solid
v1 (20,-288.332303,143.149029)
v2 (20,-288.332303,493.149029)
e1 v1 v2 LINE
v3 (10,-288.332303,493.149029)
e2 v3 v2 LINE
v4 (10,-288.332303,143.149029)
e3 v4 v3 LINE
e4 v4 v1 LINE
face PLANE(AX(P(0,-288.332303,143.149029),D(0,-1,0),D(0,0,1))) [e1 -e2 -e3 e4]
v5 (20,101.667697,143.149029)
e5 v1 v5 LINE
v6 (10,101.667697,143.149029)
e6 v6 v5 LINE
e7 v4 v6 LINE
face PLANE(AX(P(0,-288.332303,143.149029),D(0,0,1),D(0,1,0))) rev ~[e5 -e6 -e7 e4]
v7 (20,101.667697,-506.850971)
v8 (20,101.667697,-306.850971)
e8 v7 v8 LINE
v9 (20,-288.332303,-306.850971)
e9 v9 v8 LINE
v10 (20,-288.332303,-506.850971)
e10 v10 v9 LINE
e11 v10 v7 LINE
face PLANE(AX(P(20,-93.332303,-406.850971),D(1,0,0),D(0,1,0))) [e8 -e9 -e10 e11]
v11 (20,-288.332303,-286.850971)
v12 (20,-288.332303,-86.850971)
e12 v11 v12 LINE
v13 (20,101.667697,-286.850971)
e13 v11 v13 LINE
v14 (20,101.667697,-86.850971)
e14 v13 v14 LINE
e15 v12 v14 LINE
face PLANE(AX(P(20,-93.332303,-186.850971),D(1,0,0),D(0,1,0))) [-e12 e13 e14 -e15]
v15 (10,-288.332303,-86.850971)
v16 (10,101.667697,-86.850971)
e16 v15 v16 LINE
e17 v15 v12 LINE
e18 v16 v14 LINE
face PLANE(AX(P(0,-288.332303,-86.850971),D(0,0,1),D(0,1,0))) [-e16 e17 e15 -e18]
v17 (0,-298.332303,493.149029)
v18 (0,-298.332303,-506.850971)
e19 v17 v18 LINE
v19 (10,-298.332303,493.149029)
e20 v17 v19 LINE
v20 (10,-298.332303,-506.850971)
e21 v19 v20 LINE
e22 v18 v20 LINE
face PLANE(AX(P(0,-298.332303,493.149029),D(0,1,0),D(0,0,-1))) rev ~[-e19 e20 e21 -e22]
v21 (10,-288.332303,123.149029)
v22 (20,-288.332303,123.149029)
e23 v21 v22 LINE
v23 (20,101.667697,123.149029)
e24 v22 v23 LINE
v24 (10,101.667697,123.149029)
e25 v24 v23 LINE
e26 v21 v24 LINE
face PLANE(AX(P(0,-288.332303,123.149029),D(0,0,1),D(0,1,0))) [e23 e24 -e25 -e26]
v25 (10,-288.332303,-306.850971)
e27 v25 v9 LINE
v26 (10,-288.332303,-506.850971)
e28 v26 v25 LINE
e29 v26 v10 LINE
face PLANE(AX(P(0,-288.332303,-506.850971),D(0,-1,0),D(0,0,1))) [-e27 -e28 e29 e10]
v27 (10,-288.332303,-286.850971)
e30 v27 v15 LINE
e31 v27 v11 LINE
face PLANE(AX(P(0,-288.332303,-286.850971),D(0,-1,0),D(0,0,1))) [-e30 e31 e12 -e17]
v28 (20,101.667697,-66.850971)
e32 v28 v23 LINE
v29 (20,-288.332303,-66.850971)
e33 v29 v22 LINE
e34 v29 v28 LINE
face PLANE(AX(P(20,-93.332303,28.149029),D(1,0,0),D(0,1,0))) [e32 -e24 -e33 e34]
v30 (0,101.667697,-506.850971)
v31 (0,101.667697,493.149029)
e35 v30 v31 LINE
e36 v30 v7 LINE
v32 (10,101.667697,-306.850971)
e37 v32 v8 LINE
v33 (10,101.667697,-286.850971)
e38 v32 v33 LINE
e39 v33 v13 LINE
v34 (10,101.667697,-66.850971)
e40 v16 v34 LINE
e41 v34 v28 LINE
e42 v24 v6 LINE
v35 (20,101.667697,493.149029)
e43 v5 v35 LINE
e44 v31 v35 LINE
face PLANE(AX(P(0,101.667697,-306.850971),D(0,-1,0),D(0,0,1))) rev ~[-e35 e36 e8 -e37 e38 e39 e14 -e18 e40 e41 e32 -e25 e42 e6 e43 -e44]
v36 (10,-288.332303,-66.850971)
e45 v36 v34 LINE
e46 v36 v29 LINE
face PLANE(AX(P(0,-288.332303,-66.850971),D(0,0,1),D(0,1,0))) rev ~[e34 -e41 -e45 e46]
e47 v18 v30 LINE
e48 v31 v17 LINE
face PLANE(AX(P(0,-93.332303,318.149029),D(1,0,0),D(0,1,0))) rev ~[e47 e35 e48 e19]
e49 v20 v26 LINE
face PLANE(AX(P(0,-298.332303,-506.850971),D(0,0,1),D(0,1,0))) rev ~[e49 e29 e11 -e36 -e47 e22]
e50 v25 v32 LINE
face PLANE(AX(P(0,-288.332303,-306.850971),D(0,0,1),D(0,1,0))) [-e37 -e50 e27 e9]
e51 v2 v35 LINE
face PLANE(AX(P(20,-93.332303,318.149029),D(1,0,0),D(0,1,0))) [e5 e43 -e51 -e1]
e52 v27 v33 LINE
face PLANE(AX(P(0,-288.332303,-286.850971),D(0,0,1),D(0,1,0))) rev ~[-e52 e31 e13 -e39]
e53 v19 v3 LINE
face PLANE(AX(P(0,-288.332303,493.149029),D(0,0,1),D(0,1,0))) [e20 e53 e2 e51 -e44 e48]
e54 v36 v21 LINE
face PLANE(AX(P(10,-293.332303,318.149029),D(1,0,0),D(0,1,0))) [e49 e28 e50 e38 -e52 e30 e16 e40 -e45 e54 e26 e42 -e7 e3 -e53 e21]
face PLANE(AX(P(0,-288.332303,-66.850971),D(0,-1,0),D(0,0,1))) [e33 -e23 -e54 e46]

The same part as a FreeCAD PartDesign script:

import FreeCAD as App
import Part
import Sketcher
from FreeCAD import Vector

doc = App.newDocument("Part")
body = doc.addObject("PartDesign::Body", "Body")

# Sketch on YZ plane
sketch1 = body.newObject("Sketcher::SketchObject", "Sketch")
sketch1.AttachmentSupport = (doc.getObject("YZ_Plane"), [""])
sketch1.MapMode = "FlatFace"
sketch1.addGeometry(Part.LineSegment(Vector(-298, 493, 0), Vector(-298, -507, 0)), False)
sketch1.addGeometry(Part.LineSegment(Vector(-298, -507, 0), Vector(-288, -507, 0)), False)
sketch1.addGeometry(Part.LineSegment(Vector(-288, -507, 0), Vector(-288, -307, 0)), False)
sketch1.addGeometry(Part.LineSegment(Vector(-288, -307, 0), Vector(102, -307, 0)), False)
sketch1.addGeometry(Part.LineSegment(Vector(102, -307, 0), Vector(102, -287, 0)), False)
sketch1.addGeometry(Part.LineSegment(Vector(102, -287, 0), Vector(-288, -287, 0)), False)
sketch1.addGeometry(Part.LineSegment(Vector(-288, -287, 0), Vector(-288, -87, 0)), False)
sketch1.addGeometry(Part.LineSegment(Vector(-288, -87, 0), Vector(102, -87, 0)), False)
sketch1.addGeometry(Part.LineSegment(Vector(102, -87, 0), Vector(102, -67, 0)), False)
sketch1.addGeometry(Part.LineSegment(Vector(102, -67, 0), Vector(-288, -67, 0)), False)
sketch1.addGeometry(Part.LineSegment(Vector(-288, -67, 0), Vector(-288, 123, 0)), False)
sketch1.addGeometry(Part.LineSegment(Vector(-288, 123, 0), Vector(102, 123, 0)), False)
sketch1.addGeometry(Part.LineSegment(Vector(102, 123, 0), Vector(102, 143, 0)), False)
sketch1.addGeometry(Part.LineSegment(Vector(102, 143, 0), Vector(-288, 143, 0)), False)
sketch1.addGeometry(Part.LineSegment(Vector(-288, 143, 0), Vector(-288, 493, 0)), False)
sketch1.addGeometry(Part.LineSegment(Vector(-288, 493, 0), Vector(-298, 493, 0)), False)
sketch1.addConstraint(Sketcher.Constraint("Coincident", 0, 2, 1, 1))
sketch1.addConstraint(Sketcher.Constraint("Coincident", 1, 2, 2, 1))
sketch1.addConstraint(Sketcher.Constraint("Coincident", 2, 2, 3, 1))
sketch1.addConstraint(Sketcher.Constraint("Coincident", 3, 2, 4, 1))
sketch1.addConstraint(Sketcher.Constraint("Coincident", 4, 2, 5, 1))
sketch1.addConstraint(Sketcher.Constraint("Coincident", 5, 2, 6, 1))
sketch1.addConstraint(Sketcher.Constraint("Coincident", 6, 2, 7, 1))
sketch1.addConstraint(Sketcher.Constraint("Coincident", 7, 2, 8, 1))
sketch1.addConstraint(Sketcher.Constraint("Coincident", 8, 2, 9, 1))
sketch1.addConstraint(Sketcher.Constraint("Coincident", 9, 2, 10, 1))
sketch1.addConstraint(Sketcher.Constraint("Coincident", 10, 2, 11, 1))
sketch1.addConstraint(Sketcher.Constraint("Coincident", 11, 2, 12, 1))
sketch1.addConstraint(Sketcher.Constraint("Coincident", 12, 2, 13, 1))
sketch1.addConstraint(Sketcher.Constraint("Coincident", 13, 2, 14, 1))
sketch1.addConstraint(Sketcher.Constraint("Coincident", 14, 2, 15, 1))
sketch1.addConstraint(Sketcher.Constraint("Coincident", 15, 2, 0, 1))
sketch1.addConstraint(Sketcher.Constraint("Vertical", 0))
sketch1.addConstraint(Sketcher.Constraint("Horizontal", 1))
sketch1.addConstraint(Sketcher.Constraint("Vertical", 2))
sketch1.addConstraint(Sketcher.Constraint("Horizontal", 3))
sketch1.addConstraint(Sketcher.Constraint("Vertical", 4))
sketch1.addConstraint(Sketcher.Constraint("Horizontal", 5))
sketch1.addConstraint(Sketcher.Constraint("Vertical", 6))
sketch1.addConstraint(Sketcher.Constraint("Horizontal", 7))
sketch1.addConstraint(Sketcher.Constraint("Vertical", 8))
sketch1.addConstraint(Sketcher.Constraint("Horizontal", 9))
sketch1.addConstraint(Sketcher.Constraint("Vertical", 10))
sketch1.addConstraint(Sketcher.Constraint("Horizontal", 11))
sketch1.addConstraint(Sketcher.Constraint("Vertical", 12))
sketch1.addConstraint(Sketcher.Constraint("Horizontal", 13))
sketch1.addConstraint(Sketcher.Constraint("Vertical", 14))
sketch1.addConstraint(Sketcher.Constraint("Horizontal", 15))
sketch1.addConstraint(Sketcher.Constraint("Vertical", 2, 2, 5, 2))
sketch1.addConstraint(Sketcher.Constraint("Vertical", 4, 2, 7, 2))
sketch1.addConstraint(Sketcher.Constraint("Vertical", 6, 2, 9, 2))
sketch1.addConstraint(Sketcher.Constraint("Vertical", 8, 2, 11, 2))
sketch1.addConstraint(Sketcher.Constraint("Vertical", 10, 2, 13, 2))
sketch1.addConstraint(Sketcher.Constraint("Equal", 2, 6))
sketch1.addConstraint(Sketcher.Constraint("Equal", 4, 8))
sketch1.addConstraint(Sketcher.Constraint("Equal", 8, 12))
sketch1.addConstraint(Sketcher.Constraint("DistanceX", 1, 1, 1, 2, 10.0))
sketch1.addConstraint(Sketcher.Constraint("DistanceX", 3, 1, 3, 2, 390.0))
sketch1.addConstraint(Sketcher.Constraint("DistanceY", 0, 2, 0, 1, 1000.0))
sketch1.addConstraint(Sketcher.Constraint("DistanceY", 2, 1, 2, 2, 200.0))
sketch1.addConstraint(Sketcher.Constraint("DistanceY", 4, 1, 4, 2, 20.0))
sketch1.addConstraint(Sketcher.Constraint("DistanceY", 10, 1, 10, 2, 190.0))
sketch1.addConstraint(Sketcher.Constraint("DistanceY", 0, 2, -1, 1, 506.850971))
sketch1.addConstraint(Sketcher.Constraint("DistanceX", 0, 2, -1, 1, 298.332303))
pad1 = body.newObject("PartDesign::Pad", "Pad")
pad1.Profile = sketch1
pad1.Length = 10

# Sketch on YZ plane
sketch2 = body.newObject("Sketcher::SketchObject", "Sketch001")
sketch2.AttachmentSupport = (doc.getObject("YZ_Plane"), [""])
sketch2.MapMode = "FlatFace"
sketch2.addGeometry(Part.LineSegment(Vector(-288, 493, 0), Vector(-288, 143, 0)), False)
sketch2.addGeometry(Part.LineSegment(Vector(-288, 143, 0), Vector(102, 143, 0)), False)
sketch2.addGeometry(Part.LineSegment(Vector(102, 143, 0), Vector(102, 493, 0)), False)
sketch2.addGeometry(Part.LineSegment(Vector(102, 493, 0), Vector(-288, 493, 0)), False)
sketch2.addGeometry(Part.LineSegment(Vector(-288, 123, 0), Vector(-288, -67, 0)), False)
sketch2.addGeometry(Part.LineSegment(Vector(-288, -67, 0), Vector(102, -67, 0)), False)
sketch2.addGeometry(Part.LineSegment(Vector(102, -67, 0), Vector(102, 123, 0)), False)
sketch2.addGeometry(Part.LineSegment(Vector(102, 123, 0), Vector(-288, 123, 0)), False)
sketch2.addGeometry(Part.LineSegment(Vector(-288, -87, 0), Vector(-288, -287, 0)), False)
sketch2.addGeometry(Part.LineSegment(Vector(-288, -287, 0), Vector(102, -287, 0)), False)
sketch2.addGeometry(Part.LineSegment(Vector(102, -287, 0), Vector(102, -87, 0)), False)
sketch2.addGeometry(Part.LineSegment(Vector(102, -87, 0), Vector(-288, -87, 0)), False)
sketch2.addGeometry(Part.LineSegment(Vector(-288, -307, 0), Vector(-288, -507, 0)), False)
sketch2.addGeometry(Part.LineSegment(Vector(-288, -507, 0), Vector(102, -507, 0)), False)
sketch2.addGeometry(Part.LineSegment(Vector(102, -507, 0), Vector(102, -307, 0)), False)
sketch2.addGeometry(Part.LineSegment(Vector(102, -307, 0), Vector(-288, -307, 0)), False)
sketch2.addConstraint(Sketcher.Constraint("Coincident", 0, 2, 1, 1))
sketch2.addConstraint(Sketcher.Constraint("Coincident", 1, 2, 2, 1))
sketch2.addConstraint(Sketcher.Constraint("Coincident", 2, 2, 3, 1))
sketch2.addConstraint(Sketcher.Constraint("Coincident", 3, 2, 0, 1))
sketch2.addConstraint(Sketcher.Constraint("Coincident", 4, 2, 5, 1))
sketch2.addConstraint(Sketcher.Constraint("Coincident", 5, 2, 6, 1))
sketch2.addConstraint(Sketcher.Constraint("Coincident", 6, 2, 7, 1))
sketch2.addConstraint(Sketcher.Constraint("Coincident", 7, 2, 4, 1))
sketch2.addConstraint(Sketcher.Constraint("Coincident", 8, 2, 9, 1))
sketch2.addConstraint(Sketcher.Constraint("Coincident", 9, 2, 10, 1))
sketch2.addConstraint(Sketcher.Constraint("Coincident", 10, 2, 11, 1))
sketch2.addConstraint(Sketcher.Constraint("Coincident", 11, 2, 8, 1))
sketch2.addConstraint(Sketcher.Constraint("Coincident", 12, 2, 13, 1))
sketch2.addConstraint(Sketcher.Constraint("Coincident", 13, 2, 14, 1))
sketch2.addConstraint(Sketcher.Constraint("Coincident", 14, 2, 15, 1))
sketch2.addConstraint(Sketcher.Constraint("Coincident", 15, 2, 12, 1))
sketch2.addConstraint(Sketcher.Constraint("Vertical", 0))
sketch2.addConstraint(Sketcher.Constraint("Horizontal", 1))
sketch2.addConstraint(Sketcher.Constraint("Vertical", 2))
sketch2.addConstraint(Sketcher.Constraint("Horizontal", 3))
sketch2.addConstraint(Sketcher.Constraint("Vertical", 4))
sketch2.addConstraint(Sketcher.Constraint("Horizontal", 5))
sketch2.addConstraint(Sketcher.Constraint("Vertical", 6))
sketch2.addConstraint(Sketcher.Constraint("Horizontal", 7))
sketch2.addConstraint(Sketcher.Constraint("Vertical", 8))
sketch2.addConstraint(Sketcher.Constraint("Horizontal", 9))
sketch2.addConstraint(Sketcher.Constraint("Vertical", 10))
sketch2.addConstraint(Sketcher.Constraint("Horizontal", 11))
sketch2.addConstraint(Sketcher.Constraint("Vertical", 12))
sketch2.addConstraint(Sketcher.Constraint("Horizontal", 13))
sketch2.addConstraint(Sketcher.Constraint("Vertical", 14))
sketch2.addConstraint(Sketcher.Constraint("Horizontal", 15))
sketch2.addConstraint(Sketcher.Constraint("Vertical", 3, 2, 4, 2))
sketch2.addConstraint(Sketcher.Constraint("Vertical", 2, 2, 5, 2))
sketch2.addConstraint(Sketcher.Constraint("Vertical", 7, 2, 8, 2))
sketch2.addConstraint(Sketcher.Constraint("Vertical", 6, 2, 9, 2))
sketch2.addConstraint(Sketcher.Constraint("Vertical", 11, 2, 12, 2))
sketch2.addConstraint(Sketcher.Constraint("Vertical", 10, 2, 13, 2))
sketch2.addConstraint(Sketcher.Constraint("Equal", 10, 12))
sketch2.addConstraint(Sketcher.Constraint("DistanceX", 1, 1, 1, 2, 390.0))
sketch2.addConstraint(Sketcher.Constraint("DistanceY", 0, 2, 0, 1, 350.0))
sketch2.addConstraint(Sketcher.Constraint("DistanceY", 4, 2, 4, 1, 190.0))
sketch2.addConstraint(Sketcher.Constraint("DistanceY", 8, 2, 8, 1, 200.0))
sketch2.addConstraint(Sketcher.Constraint("DistanceY", 4, 2, 0, 2, 210.0))
sketch2.addConstraint(Sketcher.Constraint("DistanceY", 8, 2, 4, 2, 220.0))
sketch2.addConstraint(Sketcher.Constraint("DistanceY", 12, 2, 8, 2, 220.0))
sketch2.addConstraint(Sketcher.Constraint("DistanceY", -1, 1, 0, 2, 143.149029))
sketch2.addConstraint(Sketcher.Constraint("DistanceX", 0, 2, -1, 1, 288.332303))
pad2 = body.newObject("PartDesign::Pad", "Pad001")
pad2.Profile = sketch2
pad2.Length = 20

doc.recompute()
